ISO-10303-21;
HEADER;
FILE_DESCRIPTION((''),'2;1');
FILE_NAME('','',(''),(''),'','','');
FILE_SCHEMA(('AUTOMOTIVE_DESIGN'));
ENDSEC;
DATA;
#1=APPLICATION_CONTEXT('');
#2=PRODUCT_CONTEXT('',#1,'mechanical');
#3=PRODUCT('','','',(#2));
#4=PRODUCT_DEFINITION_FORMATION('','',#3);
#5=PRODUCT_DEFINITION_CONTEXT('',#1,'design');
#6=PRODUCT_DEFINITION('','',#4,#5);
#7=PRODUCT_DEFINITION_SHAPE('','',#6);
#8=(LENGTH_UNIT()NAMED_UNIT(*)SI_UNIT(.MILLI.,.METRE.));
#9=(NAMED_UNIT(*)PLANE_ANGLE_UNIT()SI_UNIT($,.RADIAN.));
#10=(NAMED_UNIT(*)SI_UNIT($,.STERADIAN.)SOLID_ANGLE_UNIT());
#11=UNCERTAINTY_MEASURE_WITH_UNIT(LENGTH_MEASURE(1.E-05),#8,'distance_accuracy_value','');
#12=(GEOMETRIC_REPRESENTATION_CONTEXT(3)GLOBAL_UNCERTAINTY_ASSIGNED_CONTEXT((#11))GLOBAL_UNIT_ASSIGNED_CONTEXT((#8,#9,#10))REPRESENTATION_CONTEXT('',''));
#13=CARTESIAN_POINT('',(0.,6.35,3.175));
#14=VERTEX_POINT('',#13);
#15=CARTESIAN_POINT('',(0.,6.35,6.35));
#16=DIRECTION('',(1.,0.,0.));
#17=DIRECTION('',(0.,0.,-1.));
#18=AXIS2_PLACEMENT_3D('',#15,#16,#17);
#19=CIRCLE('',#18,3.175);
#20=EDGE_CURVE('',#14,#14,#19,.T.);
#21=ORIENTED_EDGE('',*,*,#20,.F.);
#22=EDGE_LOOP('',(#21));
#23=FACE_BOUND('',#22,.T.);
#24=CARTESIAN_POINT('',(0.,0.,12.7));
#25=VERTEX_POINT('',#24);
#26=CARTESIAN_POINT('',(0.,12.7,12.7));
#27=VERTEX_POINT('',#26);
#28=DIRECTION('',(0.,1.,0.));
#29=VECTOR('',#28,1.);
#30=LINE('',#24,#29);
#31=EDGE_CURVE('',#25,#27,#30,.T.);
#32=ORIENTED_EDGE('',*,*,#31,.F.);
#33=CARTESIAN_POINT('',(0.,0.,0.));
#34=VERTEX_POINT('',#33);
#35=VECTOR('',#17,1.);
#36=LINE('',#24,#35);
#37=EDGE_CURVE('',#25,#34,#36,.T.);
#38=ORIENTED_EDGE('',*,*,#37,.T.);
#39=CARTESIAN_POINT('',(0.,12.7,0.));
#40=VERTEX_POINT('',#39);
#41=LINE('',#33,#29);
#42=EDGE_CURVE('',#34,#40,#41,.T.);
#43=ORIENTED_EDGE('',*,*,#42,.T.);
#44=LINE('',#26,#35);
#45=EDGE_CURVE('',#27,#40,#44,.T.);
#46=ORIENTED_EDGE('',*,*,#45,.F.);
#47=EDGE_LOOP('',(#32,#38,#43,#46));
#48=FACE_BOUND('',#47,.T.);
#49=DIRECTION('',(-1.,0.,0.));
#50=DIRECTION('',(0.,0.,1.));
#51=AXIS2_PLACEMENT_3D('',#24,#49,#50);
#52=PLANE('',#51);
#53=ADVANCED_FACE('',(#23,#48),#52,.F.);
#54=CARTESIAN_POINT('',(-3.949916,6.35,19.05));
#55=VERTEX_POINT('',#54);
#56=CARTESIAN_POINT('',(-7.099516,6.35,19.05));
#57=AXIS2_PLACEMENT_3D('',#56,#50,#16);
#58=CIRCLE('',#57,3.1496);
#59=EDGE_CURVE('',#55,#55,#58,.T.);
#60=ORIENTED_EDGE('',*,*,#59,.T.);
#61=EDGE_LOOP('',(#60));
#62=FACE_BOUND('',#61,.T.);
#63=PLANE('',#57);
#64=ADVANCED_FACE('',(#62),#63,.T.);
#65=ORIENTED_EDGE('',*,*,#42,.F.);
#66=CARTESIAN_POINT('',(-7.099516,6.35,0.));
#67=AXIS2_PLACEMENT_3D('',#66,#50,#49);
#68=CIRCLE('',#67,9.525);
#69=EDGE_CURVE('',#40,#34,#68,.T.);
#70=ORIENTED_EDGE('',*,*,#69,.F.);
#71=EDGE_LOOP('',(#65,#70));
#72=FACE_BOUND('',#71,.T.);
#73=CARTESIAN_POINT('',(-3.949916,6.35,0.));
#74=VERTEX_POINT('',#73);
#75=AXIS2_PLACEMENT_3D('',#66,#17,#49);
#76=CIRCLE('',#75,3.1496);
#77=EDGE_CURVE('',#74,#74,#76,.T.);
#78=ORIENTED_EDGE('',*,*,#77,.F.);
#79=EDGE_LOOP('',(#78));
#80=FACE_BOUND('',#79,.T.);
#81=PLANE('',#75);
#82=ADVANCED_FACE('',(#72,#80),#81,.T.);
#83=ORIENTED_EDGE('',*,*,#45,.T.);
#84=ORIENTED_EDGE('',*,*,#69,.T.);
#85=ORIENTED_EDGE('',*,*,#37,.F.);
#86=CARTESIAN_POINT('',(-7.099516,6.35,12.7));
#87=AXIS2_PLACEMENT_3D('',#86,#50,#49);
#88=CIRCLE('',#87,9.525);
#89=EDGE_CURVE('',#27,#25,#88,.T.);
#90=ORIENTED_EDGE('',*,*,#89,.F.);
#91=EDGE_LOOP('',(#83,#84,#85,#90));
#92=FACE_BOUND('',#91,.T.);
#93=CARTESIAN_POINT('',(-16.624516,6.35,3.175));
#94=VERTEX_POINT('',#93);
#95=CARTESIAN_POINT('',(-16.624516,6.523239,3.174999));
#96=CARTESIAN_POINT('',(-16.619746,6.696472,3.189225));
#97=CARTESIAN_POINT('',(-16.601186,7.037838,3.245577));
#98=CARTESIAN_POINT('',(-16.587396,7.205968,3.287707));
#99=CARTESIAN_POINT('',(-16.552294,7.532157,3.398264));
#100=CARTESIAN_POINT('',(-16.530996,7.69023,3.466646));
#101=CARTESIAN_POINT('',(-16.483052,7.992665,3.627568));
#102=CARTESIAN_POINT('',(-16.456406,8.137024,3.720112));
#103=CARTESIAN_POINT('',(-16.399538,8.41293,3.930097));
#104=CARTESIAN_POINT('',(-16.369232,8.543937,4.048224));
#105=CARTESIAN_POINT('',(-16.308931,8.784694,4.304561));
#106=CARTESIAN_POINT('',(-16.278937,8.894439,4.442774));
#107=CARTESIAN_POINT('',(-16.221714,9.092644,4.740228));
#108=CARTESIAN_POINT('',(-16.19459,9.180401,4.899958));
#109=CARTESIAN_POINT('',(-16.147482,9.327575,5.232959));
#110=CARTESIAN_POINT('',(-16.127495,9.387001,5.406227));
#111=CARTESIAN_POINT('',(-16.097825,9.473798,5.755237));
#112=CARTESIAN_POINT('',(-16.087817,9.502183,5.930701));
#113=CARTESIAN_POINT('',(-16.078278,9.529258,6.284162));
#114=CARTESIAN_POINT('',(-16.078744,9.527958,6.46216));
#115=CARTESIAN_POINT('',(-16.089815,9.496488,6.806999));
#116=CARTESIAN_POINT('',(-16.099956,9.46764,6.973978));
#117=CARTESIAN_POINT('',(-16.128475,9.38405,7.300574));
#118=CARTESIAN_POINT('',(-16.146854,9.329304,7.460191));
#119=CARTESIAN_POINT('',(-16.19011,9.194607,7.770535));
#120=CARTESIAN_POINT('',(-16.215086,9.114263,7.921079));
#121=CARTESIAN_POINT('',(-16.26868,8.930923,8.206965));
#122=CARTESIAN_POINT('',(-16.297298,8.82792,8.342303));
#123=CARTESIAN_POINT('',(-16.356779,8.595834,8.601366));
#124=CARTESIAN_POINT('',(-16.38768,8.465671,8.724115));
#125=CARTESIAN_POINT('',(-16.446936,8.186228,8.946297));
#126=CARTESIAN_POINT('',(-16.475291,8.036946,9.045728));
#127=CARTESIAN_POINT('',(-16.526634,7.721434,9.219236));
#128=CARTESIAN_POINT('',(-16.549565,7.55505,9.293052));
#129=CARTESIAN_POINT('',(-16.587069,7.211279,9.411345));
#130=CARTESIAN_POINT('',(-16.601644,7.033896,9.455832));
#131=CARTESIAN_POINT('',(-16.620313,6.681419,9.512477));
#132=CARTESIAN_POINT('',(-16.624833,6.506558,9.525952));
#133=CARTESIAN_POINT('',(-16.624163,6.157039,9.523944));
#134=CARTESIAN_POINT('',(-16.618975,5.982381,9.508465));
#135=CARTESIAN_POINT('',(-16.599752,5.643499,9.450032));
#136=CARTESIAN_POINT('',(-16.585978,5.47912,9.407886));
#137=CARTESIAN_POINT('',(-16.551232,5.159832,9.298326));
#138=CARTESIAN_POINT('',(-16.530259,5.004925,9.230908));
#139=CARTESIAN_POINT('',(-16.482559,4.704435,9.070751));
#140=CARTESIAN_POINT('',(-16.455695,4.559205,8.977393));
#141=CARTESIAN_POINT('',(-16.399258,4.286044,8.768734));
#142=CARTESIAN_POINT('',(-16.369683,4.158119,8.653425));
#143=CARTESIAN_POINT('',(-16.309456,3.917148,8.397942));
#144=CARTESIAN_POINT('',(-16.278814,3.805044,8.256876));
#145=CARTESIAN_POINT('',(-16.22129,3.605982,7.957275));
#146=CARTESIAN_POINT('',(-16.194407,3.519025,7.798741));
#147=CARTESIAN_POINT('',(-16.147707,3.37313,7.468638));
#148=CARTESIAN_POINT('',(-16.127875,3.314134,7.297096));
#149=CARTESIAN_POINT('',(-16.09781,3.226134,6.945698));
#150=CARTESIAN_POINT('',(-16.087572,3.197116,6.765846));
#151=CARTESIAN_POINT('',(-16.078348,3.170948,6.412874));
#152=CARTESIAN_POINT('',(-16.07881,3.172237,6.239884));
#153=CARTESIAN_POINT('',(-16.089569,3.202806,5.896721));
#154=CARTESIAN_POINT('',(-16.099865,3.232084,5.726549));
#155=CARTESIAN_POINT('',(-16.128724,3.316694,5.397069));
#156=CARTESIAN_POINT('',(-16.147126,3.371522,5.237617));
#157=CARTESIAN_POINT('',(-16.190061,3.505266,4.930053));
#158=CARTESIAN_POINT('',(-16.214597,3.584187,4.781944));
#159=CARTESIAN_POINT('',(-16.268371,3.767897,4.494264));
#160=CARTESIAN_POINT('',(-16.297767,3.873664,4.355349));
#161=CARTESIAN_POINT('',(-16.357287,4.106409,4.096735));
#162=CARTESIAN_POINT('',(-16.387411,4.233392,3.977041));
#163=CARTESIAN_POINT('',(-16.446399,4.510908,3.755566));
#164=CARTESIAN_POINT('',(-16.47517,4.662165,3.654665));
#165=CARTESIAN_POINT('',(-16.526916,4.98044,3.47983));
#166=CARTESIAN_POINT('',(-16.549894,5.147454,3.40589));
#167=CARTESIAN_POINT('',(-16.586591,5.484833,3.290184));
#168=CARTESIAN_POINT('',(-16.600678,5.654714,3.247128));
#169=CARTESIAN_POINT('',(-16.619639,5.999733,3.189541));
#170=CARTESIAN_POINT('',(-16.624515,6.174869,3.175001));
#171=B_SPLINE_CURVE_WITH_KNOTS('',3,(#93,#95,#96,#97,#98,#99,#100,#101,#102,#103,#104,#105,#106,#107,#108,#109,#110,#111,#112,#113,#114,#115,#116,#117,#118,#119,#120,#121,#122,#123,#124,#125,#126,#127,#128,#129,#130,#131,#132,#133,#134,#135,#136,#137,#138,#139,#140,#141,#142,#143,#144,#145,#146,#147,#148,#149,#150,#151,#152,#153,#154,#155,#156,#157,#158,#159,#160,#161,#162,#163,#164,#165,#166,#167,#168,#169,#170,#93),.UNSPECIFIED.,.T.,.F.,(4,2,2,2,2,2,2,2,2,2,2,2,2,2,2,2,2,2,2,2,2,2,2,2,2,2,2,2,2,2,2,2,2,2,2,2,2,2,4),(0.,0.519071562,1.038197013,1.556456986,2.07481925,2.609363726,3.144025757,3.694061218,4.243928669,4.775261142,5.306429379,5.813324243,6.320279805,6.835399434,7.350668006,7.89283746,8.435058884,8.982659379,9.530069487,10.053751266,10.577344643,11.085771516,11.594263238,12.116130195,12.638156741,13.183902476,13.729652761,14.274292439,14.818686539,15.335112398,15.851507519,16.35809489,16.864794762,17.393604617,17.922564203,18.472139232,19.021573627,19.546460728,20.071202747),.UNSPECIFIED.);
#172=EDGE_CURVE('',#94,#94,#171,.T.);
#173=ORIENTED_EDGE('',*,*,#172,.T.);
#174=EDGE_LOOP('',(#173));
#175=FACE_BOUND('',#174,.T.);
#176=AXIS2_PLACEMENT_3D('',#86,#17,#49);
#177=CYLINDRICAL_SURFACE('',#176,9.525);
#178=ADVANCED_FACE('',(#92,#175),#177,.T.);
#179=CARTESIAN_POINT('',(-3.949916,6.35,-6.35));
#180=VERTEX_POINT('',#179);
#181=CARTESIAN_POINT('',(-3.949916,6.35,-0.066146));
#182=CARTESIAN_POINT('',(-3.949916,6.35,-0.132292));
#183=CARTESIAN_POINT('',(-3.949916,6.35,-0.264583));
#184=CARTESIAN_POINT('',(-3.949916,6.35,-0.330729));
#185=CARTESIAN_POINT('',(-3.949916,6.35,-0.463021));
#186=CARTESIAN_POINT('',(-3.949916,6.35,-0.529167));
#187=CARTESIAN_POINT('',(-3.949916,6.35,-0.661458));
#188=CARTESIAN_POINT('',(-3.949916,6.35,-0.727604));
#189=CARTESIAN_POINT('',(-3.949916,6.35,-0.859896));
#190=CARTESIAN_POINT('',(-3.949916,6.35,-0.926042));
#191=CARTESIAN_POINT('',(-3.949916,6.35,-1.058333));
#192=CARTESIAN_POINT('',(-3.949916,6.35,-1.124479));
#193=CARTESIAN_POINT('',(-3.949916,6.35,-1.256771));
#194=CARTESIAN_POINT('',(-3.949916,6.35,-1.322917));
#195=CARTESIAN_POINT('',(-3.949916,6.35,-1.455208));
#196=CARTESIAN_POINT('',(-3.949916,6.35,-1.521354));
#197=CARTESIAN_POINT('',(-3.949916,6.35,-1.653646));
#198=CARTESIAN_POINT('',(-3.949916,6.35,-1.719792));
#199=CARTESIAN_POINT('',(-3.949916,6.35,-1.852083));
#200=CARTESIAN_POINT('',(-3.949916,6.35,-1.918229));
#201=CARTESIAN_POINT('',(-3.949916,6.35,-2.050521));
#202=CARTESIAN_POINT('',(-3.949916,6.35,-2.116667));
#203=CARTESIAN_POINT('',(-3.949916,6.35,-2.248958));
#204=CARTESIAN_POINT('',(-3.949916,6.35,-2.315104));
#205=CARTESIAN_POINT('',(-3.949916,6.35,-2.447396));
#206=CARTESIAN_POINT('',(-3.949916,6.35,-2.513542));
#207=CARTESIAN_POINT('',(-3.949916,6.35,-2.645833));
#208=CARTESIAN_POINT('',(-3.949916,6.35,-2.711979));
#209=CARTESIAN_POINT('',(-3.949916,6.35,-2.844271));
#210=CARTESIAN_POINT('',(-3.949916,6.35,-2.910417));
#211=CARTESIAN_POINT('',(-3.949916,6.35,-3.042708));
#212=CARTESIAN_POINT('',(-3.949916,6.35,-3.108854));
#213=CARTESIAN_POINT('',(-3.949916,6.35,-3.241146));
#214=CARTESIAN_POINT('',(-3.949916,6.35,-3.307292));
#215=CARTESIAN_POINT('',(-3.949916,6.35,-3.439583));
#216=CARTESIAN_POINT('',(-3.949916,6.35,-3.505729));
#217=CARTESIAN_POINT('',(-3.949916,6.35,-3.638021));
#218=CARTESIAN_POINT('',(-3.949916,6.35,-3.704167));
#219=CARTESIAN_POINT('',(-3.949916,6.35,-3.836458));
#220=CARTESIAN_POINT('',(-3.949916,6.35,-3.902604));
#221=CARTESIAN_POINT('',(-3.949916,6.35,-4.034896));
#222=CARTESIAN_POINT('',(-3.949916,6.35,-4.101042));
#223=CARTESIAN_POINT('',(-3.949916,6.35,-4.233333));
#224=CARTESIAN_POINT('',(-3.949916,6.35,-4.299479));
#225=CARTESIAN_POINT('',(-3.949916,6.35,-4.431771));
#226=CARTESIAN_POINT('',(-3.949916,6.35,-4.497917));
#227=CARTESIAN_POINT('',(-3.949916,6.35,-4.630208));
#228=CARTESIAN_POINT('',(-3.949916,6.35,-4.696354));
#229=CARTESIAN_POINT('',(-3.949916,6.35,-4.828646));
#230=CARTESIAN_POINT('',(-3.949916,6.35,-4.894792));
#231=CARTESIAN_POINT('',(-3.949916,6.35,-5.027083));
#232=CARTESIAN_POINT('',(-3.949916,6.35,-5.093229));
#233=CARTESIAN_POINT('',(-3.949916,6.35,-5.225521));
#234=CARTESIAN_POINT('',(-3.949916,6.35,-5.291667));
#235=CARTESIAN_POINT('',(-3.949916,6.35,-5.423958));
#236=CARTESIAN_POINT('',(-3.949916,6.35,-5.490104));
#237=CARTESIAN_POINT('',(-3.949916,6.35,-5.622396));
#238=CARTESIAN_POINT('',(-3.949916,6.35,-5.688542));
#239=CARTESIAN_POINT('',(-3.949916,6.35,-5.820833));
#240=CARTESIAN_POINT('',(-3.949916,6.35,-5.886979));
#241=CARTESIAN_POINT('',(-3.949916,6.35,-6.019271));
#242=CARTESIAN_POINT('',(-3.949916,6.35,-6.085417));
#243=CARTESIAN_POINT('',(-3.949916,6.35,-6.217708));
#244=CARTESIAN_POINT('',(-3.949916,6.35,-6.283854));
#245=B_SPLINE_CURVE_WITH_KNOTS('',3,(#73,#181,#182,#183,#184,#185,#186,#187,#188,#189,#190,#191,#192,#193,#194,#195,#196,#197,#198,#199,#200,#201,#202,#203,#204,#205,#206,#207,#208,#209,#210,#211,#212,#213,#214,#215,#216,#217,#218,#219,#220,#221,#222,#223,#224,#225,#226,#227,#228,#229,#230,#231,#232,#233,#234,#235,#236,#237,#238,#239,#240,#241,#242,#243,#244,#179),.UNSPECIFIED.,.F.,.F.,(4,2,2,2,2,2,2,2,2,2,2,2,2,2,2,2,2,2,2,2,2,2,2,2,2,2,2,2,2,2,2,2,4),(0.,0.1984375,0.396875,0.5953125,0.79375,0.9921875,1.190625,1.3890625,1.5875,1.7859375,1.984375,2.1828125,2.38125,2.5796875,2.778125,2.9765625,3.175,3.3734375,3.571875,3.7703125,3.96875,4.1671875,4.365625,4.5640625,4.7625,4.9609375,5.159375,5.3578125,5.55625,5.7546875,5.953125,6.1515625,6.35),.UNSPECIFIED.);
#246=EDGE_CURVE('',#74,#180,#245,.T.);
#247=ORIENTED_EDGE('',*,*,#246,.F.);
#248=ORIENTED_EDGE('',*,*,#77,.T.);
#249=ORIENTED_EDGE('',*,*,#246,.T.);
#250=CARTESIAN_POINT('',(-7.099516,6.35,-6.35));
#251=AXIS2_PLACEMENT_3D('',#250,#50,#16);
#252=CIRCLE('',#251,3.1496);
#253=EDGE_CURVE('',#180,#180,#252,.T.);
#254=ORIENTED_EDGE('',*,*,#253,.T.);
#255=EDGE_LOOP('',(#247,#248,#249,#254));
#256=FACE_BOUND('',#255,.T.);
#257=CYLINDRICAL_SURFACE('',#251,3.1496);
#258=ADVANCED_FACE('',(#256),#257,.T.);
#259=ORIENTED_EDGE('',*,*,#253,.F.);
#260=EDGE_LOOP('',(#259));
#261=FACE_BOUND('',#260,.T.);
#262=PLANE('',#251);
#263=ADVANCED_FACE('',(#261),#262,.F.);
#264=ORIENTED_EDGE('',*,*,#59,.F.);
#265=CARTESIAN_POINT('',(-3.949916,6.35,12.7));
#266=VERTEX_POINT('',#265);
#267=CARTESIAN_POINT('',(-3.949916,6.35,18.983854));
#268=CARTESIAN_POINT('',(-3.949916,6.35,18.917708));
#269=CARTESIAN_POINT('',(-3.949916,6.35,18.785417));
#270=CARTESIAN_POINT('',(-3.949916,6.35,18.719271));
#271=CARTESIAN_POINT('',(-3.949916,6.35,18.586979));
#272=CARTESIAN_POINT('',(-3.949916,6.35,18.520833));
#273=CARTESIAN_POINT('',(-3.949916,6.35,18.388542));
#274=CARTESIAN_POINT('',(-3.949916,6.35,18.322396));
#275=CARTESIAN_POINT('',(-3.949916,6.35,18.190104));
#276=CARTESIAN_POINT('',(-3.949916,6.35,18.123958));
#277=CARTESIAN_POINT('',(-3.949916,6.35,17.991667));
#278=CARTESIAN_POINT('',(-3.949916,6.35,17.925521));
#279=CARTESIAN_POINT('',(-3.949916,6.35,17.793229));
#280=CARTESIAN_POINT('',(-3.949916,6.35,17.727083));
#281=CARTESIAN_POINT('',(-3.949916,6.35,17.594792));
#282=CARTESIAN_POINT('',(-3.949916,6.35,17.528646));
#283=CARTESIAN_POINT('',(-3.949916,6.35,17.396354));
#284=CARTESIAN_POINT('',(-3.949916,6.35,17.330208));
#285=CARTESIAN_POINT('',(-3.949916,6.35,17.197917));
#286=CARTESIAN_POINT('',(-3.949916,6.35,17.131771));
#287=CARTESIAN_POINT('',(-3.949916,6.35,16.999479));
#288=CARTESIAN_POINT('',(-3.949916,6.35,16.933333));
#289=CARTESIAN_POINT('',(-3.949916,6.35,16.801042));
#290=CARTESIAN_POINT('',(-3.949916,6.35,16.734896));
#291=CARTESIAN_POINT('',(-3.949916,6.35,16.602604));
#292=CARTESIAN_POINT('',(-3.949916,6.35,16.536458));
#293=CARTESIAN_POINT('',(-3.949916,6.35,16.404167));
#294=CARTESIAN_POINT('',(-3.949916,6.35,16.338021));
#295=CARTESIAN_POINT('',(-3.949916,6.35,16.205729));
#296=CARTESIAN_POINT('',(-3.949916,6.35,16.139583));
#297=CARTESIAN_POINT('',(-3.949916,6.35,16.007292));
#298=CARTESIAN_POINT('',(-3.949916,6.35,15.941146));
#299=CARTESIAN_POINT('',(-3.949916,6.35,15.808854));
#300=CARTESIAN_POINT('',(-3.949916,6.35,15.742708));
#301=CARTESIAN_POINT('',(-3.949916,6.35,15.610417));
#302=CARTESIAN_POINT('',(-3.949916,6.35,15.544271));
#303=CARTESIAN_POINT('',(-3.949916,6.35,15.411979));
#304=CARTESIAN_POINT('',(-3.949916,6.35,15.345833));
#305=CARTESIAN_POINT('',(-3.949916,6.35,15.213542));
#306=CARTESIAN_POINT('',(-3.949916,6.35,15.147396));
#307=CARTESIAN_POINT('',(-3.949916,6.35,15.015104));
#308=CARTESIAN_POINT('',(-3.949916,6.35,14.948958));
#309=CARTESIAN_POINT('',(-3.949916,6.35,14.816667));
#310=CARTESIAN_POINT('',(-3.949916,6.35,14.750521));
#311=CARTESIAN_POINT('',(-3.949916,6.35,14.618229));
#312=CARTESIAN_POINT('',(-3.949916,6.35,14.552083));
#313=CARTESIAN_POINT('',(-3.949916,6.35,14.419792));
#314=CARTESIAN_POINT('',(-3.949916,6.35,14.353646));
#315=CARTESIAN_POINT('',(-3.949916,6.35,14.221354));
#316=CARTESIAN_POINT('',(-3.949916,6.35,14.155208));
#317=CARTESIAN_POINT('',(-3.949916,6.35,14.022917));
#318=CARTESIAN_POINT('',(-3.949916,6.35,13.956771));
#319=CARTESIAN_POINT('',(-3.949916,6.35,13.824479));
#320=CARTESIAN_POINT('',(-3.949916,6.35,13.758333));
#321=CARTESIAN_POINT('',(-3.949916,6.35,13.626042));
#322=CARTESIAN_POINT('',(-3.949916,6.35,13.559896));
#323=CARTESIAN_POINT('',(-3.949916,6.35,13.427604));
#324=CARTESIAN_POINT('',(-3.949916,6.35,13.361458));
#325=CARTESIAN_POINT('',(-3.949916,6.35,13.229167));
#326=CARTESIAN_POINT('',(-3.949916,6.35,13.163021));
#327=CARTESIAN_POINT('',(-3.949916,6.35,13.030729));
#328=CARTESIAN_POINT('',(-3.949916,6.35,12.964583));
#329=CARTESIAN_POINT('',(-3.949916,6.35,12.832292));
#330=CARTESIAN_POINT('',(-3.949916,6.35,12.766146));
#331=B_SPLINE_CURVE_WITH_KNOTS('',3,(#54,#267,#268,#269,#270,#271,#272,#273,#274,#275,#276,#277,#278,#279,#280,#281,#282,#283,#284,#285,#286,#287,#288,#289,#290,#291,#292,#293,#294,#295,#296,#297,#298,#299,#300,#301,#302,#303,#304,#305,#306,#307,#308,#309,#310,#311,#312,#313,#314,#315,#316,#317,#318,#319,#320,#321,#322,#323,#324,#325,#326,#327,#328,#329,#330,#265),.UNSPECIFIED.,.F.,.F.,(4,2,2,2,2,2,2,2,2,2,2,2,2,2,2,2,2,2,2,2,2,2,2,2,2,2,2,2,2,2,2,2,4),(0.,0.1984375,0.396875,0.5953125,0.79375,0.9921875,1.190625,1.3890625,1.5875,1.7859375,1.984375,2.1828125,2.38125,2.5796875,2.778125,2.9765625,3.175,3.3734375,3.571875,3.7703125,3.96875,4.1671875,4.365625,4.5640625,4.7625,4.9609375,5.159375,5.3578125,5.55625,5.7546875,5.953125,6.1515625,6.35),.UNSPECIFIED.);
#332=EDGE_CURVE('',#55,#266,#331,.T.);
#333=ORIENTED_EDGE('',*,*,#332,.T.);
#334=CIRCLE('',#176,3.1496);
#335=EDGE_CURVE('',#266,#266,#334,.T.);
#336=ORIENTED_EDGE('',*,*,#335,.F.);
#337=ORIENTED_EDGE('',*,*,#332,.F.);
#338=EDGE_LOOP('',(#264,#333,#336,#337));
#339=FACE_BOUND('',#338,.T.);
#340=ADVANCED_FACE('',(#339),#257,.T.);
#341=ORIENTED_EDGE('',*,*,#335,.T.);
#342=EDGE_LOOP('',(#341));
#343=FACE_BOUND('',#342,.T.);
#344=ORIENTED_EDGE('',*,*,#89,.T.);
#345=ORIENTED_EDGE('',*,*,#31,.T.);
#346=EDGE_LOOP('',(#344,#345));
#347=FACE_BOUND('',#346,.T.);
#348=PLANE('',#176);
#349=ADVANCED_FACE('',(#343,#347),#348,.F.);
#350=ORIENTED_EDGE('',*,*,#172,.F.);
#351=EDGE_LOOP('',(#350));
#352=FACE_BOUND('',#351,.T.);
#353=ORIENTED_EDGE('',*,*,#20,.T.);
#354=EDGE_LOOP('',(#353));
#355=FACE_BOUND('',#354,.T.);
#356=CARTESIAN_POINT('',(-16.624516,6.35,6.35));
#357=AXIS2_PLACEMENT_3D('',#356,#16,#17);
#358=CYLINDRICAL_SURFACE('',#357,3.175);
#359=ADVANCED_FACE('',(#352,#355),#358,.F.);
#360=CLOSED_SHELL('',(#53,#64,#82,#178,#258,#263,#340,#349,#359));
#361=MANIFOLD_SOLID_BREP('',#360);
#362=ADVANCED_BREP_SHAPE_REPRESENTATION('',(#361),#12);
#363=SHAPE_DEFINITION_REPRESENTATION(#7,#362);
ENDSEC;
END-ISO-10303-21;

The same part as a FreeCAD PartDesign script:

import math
import FreeCAD as App
import Part
import Sketcher
from FreeCAD import Vector
Q = App.Units.Quantity

doc = App.newDocument("Part")
body = doc.addObject("PartDesign::Body", "Body")

# Sketch on XY plane
sketch1 = doc.addObject("Sketcher::SketchObject", "Sketch")
body.addObject(sketch1)
sketch1.AttachmentSupport = (doc.XY_Plane, [""])
sketch1.MapMode = "FlatFace"
sketch1.addGeometry([
    Part.LineSegment(Vector(0, 0, 0), Vector(0, 13, 0)),
    Part.ArcOfCircle(Part.Circle(Vector(-7, 6, 0), Vector(0, 0, 1), 10), math.radians(42), math.radians(318)),
], False)
sketch1.addConstraint([
    Sketcher.Constraint("Coincident", 0, 1, 1, 2),
    Sketcher.Constraint("Coincident", 1, 1, 0, 2),
    Sketcher.Constraint("Vertical", 0),
    Sketcher.Constraint("Coincident", 0, 1, -1, 1),
    Sketcher.Constraint("DistanceY", 0, 1, 0, 2, Q("0.5 in")),
    Sketcher.Constraint("Radius", 1, Q("0.375 in")),
])
pad1 = doc.addObject("PartDesign::Pad", "Pad")
body.addObject(pad1)
pad1.Profile = sketch1
pad1.Length = Q("0.5 in")

# Sketch on XY plane
sketch2 = doc.addObject("Sketcher::SketchObject", "Sketch001")
body.addObject(sketch2)
sketch2.AttachmentSupport = (doc.XY_Plane, [""])
sketch2.MapMode = "FlatFace"
sketch2.AttachmentOffset = App.Placement(Vector(0, 0, 0.5 * 25.4), App.Rotation())
sketch2.addGeometry(Part.Circle(Vector(-7.1, 6.3, 0), Vector(0, 0, 1), 3.1), False)
sketch2.addConstraint([
    Sketcher.Constraint("Diameter", 0, Q("0.248 in")),
    Sketcher.Constraint("DistanceY", -1, 1, 0, 3, Q("0.25 in")),
    Sketcher.Constraint("DistanceX", 0, 3, -1, 1, 7.099516),
])
pad2 = doc.addObject("PartDesign::Pad", "Pad001")
body.addObject(pad2)
pad2.Profile = sketch2
pad2.Type = "TwoLengths"
pad2.Length = Q("0.25 in")
pad2.Length2 = Q("0.75 in")

# Sketch on YZ plane
sketch3 = doc.addObject("Sketcher::SketchObject", "Sketch002")
body.addObject(sketch3)
sketch3.AttachmentSupport = (doc.YZ_Plane, [""])
sketch3.MapMode = "FlatFace"
sketch3.addGeometry(Part.Circle(Vector(6.3, 6.3, 0), Vector(0, 0, 1), 3.2), False)
sketch3.addConstraint([
    Sketcher.Constraint("Diameter", 0, Q("0.25 in")),
    Sketcher.Constraint("DistanceX", -1, 1, 0, 3, Q("0.25 in")),
    Sketcher.Constraint("DistanceY", -1, 1, 0, 3, Q("0.25 in")),
])
pocket1 = doc.addObject("PartDesign::Pocket", "Pocket")
body.addObject(pocket1)
pocket1.Profile = sketch3
pocket1.Type = "ThroughAll"

doc.recompute()
